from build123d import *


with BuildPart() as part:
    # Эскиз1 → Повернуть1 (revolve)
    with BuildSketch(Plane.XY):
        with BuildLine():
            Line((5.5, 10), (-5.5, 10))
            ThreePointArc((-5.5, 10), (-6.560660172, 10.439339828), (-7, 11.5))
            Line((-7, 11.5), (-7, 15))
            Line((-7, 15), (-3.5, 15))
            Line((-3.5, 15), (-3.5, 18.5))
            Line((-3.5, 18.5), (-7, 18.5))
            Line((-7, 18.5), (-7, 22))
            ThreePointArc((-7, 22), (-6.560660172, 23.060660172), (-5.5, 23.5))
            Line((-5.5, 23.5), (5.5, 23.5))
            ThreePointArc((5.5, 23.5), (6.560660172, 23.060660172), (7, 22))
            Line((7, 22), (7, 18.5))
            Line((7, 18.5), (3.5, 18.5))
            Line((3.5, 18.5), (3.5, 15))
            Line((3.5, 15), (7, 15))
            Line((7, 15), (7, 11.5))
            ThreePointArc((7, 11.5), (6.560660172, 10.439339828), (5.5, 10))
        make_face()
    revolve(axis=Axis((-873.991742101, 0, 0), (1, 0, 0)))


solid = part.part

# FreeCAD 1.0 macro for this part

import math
import FreeCAD as App
import Part
import Sketcher

doc = App.newDocument("Part")
body = doc.addObject("PartDesign::Body", "Body")

# Sketch on XY plane
sketch1 = body.newObject("Sketcher::SketchObject", "Sketch")
sketch1.AttachmentSupport = (doc.getObject("XY_Plane"), [""])
sketch1.MapMode = "FlatFace"
sketch1.addGeometry([
    Part.LineSegment(App.Vector(-5.5, 10, 0), App.Vector(5.5, 10, 0)),  # 0
    Part.ArcOfCircle(Part.Circle(App.Vector(5.5, 11.5, 0), App.Vector(0, 0, 1), 1.5), math.radians(-90), math.radians(0)),  # 1
    Part.LineSegment(App.Vector(7, 11.5, 0), App.Vector(7, 15, 0)),  # 2
    Part.LineSegment(App.Vector(7, 15, 0), App.Vector(3.5, 15, 0)),  # 3
    Part.LineSegment(App.Vector(3.5, 15, 0), App.Vector(3.5, 18.5, 0)),  # 4
    Part.LineSegment(App.Vector(3.5, 18.5, 0), App.Vector(7, 18.5, 0)),  # 5
    Part.LineSegment(App.Vector(7, 18.5, 0), App.Vector(7, 22, 0)),  # 6
    Part.ArcOfCircle(Part.Circle(App.Vector(5.5, 22, 0), App.Vector(0, 0, 1), 1.5), math.radians(0), math.radians(90)),  # 7
    Part.LineSegment(App.Vector(5.5, 23.5, 0), App.Vector(-5.5, 23.5, 0)),  # 8
    Part.ArcOfCircle(Part.Circle(App.Vector(-5.5, 22, 0), App.Vector(0, 0, 1), 1.5), math.radians(90), math.radians(180)),  # 9
    Part.LineSegment(App.Vector(-7, 22, 0), App.Vector(-7, 18.5, 0)),  # 10
    Part.LineSegment(App.Vector(-7, 18.5, 0), App.Vector(-3.5, 18.5, 0)),  # 11
    Part.LineSegment(App.Vector(-3.5, 18.5, 0), App.Vector(-3.5, 15, 0)),  # 12
    Part.LineSegment(App.Vector(-3.5, 15, 0), App.Vector(-7, 15, 0)),  # 13
    Part.LineSegment(App.Vector(-7, 15, 0), App.Vector(-7, 11.5, 0)),  # 14
    Part.ArcOfCircle(Part.Circle(App.Vector(-5.5, 11.5, 0), App.Vector(0, 0, 1), 1.5), math.radians(180), math.radians(270)),  # 15
], False)
sketch1.addConstraint([
    Sketcher.Constraint("Tangent", 0, 2, 1, 1),
    Sketcher.Constraint("Tangent", 1, 2, 2, 1),
    Sketcher.Constraint("Coincident", 2, 2, 3, 1),
    Sketcher.Constraint("Coincident", 3, 2, 4, 1),
    Sketcher.Constraint("Coincident", 4, 2, 5, 1),
    Sketcher.Constraint("Coincident", 5, 2, 6, 1),
    Sketcher.Constraint("Tangent", 6, 2, 7, 1),
    Sketcher.Constraint("Tangent", 7, 2, 8, 1),
    Sketcher.Constraint("Tangent", 8, 2, 9, 1),
    Sketcher.Constraint("Tangent", 9, 2, 10, 1),
    Sketcher.Constraint("Coincident", 10, 2, 11, 1),
    Sketcher.Constraint("Coincident", 11, 2, 12, 1),
    Sketcher.Constraint("Coincident", 12, 2, 13, 1),
    Sketcher.Constraint("Coincident", 13, 2, 14, 1),
    Sketcher.Constraint("Tangent", 14, 2, 15, 1),
    Sketcher.Constraint("Tangent", 15, 2, 0, 1),
    Sketcher.Constraint("Horizontal", 0),
    Sketcher.Constraint("Vertical", 2),
    Sketcher.Constraint("Horizontal", 3),
    Sketcher.Constraint("Vertical", 4),
    Sketcher.Constraint("Horizontal", 5),
    Sketcher.Constraint("Vertical", 6),
    Sketcher.Constraint("Horizontal", 8),
    Sketcher.Constraint("Vertical", 10),
    Sketcher.Constraint("Horizontal", 11),
    Sketcher.Constraint("Vertical", 12),
    Sketcher.Constraint("Horizontal", 13),
    Sketcher.Constraint("Vertical", 14),
    Sketcher.Constraint("Equal", 1, 7),
    Sketcher.Constraint("Equal", 7, 9),
    Sketcher.Constraint("Equal", 9, 15),
    Sketcher.Constraint("Symmetric", 5, 2, 10, 2, -2),
    Sketcher.Constraint("Symmetric", 3, 2, 12, 2, -2),
    Sketcher.Constraint("Vertical", 1, 3, 7, 3),
    Sketcher.Constraint("Vertical", 9, 3, 15, 3),
    Sketcher.Constraint("Equal", 13, 2),
    Sketcher.Constraint("Equal", 2, 4),
    Sketcher.Constraint("Equal", 4, 6),
    Sketcher.Constraint("Radius", 1, 1.5),
    Sketcher.Constraint("DistanceX", 0, 1, 0, 2, 11.0),
    Sketcher.Constraint("DistanceX", 3, 2, 3, 1, 3.5),
    Sketcher.Constraint("DistanceY", -1, 1, 7, 3, 22.0),
])
revolution = body.newObject("PartDesign::Revolution", "Revolution")
revolution.Profile = sketch1
revolution.ReferenceAxis = (sketch1, ["H_Axis"])
revolution.Angle = 360

doc.recompute()
